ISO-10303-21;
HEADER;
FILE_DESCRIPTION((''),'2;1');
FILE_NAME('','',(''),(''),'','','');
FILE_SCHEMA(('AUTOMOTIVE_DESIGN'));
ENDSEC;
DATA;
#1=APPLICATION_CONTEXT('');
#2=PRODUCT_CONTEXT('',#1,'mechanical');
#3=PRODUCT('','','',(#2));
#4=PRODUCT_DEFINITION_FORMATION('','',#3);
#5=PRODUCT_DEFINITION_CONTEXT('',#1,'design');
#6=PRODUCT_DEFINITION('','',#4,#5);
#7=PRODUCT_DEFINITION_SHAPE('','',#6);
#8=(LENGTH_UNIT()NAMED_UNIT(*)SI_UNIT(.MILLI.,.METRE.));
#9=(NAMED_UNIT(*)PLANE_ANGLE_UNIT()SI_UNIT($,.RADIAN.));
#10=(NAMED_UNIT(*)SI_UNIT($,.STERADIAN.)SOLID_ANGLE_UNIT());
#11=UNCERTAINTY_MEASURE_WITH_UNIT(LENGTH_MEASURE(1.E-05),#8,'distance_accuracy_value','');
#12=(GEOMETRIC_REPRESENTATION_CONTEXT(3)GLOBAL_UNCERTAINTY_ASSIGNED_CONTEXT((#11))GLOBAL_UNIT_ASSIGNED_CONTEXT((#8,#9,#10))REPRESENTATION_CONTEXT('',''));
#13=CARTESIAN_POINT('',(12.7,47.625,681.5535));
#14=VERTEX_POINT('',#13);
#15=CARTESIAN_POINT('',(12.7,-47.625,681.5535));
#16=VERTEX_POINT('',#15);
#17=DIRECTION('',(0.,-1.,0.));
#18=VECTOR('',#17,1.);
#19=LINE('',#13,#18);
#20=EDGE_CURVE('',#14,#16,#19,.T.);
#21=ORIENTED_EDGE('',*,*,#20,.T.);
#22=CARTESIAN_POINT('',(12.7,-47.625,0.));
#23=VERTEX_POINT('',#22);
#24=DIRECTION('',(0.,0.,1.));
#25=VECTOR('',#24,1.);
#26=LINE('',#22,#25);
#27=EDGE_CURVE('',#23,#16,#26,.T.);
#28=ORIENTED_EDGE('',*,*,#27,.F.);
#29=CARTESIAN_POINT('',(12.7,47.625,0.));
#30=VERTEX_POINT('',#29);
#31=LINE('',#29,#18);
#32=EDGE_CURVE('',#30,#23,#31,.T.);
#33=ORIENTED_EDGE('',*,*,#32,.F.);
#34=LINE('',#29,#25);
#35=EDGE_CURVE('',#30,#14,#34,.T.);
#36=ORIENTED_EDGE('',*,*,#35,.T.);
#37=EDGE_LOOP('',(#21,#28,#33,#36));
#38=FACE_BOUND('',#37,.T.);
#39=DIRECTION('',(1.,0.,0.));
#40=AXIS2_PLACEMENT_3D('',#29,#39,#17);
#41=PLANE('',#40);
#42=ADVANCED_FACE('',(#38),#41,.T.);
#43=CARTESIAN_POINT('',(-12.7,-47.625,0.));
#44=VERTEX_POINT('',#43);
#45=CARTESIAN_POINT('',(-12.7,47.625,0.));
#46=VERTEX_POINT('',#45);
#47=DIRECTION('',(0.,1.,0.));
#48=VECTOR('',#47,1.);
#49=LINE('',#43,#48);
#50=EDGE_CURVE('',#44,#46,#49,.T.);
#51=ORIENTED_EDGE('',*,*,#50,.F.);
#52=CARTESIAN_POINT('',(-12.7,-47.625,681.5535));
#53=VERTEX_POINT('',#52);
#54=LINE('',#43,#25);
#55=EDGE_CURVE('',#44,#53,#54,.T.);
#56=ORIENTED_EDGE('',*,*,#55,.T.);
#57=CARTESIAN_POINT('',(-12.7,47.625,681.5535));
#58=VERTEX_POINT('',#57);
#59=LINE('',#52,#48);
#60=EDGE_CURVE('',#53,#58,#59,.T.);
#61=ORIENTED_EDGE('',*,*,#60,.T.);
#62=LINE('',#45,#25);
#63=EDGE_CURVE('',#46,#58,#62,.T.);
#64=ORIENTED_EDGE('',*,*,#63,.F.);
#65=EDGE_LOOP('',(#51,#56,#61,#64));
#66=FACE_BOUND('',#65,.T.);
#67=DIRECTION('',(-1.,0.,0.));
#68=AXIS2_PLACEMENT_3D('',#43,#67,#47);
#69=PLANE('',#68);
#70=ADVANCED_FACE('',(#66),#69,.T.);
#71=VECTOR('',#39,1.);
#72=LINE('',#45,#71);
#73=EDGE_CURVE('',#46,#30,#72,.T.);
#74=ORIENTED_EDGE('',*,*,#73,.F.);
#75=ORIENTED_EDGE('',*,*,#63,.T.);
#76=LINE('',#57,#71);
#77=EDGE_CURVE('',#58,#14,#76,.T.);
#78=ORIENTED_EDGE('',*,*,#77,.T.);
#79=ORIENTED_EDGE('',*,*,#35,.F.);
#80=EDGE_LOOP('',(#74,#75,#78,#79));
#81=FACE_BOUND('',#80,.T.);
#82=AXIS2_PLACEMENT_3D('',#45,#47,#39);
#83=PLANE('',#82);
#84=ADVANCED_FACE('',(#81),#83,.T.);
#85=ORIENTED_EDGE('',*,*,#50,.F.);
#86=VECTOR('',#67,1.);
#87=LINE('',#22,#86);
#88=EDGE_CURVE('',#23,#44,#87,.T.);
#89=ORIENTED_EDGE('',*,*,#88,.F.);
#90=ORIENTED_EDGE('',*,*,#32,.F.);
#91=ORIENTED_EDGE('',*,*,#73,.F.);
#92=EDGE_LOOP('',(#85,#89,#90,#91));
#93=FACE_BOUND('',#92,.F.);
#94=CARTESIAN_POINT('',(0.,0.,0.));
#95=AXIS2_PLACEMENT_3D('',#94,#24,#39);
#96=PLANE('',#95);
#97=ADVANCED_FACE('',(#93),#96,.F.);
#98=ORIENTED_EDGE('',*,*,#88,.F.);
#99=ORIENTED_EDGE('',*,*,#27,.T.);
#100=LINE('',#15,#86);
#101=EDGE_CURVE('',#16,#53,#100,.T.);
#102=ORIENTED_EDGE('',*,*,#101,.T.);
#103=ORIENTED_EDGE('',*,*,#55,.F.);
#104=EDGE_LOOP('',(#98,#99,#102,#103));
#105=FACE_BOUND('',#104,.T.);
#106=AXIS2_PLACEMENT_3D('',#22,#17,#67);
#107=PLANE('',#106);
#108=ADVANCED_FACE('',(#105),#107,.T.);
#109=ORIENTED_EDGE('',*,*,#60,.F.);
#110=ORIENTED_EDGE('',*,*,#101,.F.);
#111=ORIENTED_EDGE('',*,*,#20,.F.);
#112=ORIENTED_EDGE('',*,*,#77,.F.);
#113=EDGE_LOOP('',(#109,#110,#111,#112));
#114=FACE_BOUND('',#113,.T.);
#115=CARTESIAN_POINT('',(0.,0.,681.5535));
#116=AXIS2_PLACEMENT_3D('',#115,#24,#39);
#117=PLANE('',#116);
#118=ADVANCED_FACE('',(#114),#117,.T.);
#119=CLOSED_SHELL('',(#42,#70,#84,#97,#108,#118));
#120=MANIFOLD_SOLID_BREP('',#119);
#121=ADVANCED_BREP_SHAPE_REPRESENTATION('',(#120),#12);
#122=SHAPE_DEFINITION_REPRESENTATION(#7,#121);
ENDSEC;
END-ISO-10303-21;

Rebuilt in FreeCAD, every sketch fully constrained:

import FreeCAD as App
import Part
import Sketcher
Q = App.Units.Quantity


def add_polygon(sketch, points):
    """Adds a closed chain of lines whose ends are joined by coincident constraints."""
    first, n = sketch.GeometryCount, len(points)
    for a, b in zip(points, points[1:] + points[:1]):
        sketch.addGeometry(Part.LineSegment(App.Vector(*a, 0), App.Vector(*b, 0)), False)
    for i in range(n):
        sketch.addConstraint(Sketcher.Constraint("Coincident", first + i, 2, first + (i + 1) % n, 1))

doc = App.newDocument("Part")
body = doc.addObject("PartDesign::Body", "Body")

# Sketch on XY plane
sketch1 = body.newObject("Sketcher::SketchObject", "Sketch")
sketch1.AttachmentSupport = (doc.getObject("XY_Plane"), [""])
sketch1.MapMode = "FlatFace"
add_polygon(sketch1, [(-13, -48), (13, -48), (13, 48), (-13, 48)])  # lines 0-3
sketch1.addConstraint([
    Sketcher.Constraint("Horizontal", 0),
    Sketcher.Constraint("Vertical", 1),
    Sketcher.Constraint("Horizontal", 2),
    Sketcher.Constraint("Vertical", 3),
    Sketcher.Constraint("Symmetric", 0, 2, 2, 2, -1, 1),
    Sketcher.Constraint("DistanceX", 0, 1, 0, 2, Q("1 in")),
    Sketcher.Constraint("DistanceY", 1, 1, 1, 2, Q("3.75 in")),
])
pad1 = body.newObject("PartDesign::Pad", "Pad")
pad1.Profile = sketch1
pad1.Length = 681.5535

doc.recompute()
